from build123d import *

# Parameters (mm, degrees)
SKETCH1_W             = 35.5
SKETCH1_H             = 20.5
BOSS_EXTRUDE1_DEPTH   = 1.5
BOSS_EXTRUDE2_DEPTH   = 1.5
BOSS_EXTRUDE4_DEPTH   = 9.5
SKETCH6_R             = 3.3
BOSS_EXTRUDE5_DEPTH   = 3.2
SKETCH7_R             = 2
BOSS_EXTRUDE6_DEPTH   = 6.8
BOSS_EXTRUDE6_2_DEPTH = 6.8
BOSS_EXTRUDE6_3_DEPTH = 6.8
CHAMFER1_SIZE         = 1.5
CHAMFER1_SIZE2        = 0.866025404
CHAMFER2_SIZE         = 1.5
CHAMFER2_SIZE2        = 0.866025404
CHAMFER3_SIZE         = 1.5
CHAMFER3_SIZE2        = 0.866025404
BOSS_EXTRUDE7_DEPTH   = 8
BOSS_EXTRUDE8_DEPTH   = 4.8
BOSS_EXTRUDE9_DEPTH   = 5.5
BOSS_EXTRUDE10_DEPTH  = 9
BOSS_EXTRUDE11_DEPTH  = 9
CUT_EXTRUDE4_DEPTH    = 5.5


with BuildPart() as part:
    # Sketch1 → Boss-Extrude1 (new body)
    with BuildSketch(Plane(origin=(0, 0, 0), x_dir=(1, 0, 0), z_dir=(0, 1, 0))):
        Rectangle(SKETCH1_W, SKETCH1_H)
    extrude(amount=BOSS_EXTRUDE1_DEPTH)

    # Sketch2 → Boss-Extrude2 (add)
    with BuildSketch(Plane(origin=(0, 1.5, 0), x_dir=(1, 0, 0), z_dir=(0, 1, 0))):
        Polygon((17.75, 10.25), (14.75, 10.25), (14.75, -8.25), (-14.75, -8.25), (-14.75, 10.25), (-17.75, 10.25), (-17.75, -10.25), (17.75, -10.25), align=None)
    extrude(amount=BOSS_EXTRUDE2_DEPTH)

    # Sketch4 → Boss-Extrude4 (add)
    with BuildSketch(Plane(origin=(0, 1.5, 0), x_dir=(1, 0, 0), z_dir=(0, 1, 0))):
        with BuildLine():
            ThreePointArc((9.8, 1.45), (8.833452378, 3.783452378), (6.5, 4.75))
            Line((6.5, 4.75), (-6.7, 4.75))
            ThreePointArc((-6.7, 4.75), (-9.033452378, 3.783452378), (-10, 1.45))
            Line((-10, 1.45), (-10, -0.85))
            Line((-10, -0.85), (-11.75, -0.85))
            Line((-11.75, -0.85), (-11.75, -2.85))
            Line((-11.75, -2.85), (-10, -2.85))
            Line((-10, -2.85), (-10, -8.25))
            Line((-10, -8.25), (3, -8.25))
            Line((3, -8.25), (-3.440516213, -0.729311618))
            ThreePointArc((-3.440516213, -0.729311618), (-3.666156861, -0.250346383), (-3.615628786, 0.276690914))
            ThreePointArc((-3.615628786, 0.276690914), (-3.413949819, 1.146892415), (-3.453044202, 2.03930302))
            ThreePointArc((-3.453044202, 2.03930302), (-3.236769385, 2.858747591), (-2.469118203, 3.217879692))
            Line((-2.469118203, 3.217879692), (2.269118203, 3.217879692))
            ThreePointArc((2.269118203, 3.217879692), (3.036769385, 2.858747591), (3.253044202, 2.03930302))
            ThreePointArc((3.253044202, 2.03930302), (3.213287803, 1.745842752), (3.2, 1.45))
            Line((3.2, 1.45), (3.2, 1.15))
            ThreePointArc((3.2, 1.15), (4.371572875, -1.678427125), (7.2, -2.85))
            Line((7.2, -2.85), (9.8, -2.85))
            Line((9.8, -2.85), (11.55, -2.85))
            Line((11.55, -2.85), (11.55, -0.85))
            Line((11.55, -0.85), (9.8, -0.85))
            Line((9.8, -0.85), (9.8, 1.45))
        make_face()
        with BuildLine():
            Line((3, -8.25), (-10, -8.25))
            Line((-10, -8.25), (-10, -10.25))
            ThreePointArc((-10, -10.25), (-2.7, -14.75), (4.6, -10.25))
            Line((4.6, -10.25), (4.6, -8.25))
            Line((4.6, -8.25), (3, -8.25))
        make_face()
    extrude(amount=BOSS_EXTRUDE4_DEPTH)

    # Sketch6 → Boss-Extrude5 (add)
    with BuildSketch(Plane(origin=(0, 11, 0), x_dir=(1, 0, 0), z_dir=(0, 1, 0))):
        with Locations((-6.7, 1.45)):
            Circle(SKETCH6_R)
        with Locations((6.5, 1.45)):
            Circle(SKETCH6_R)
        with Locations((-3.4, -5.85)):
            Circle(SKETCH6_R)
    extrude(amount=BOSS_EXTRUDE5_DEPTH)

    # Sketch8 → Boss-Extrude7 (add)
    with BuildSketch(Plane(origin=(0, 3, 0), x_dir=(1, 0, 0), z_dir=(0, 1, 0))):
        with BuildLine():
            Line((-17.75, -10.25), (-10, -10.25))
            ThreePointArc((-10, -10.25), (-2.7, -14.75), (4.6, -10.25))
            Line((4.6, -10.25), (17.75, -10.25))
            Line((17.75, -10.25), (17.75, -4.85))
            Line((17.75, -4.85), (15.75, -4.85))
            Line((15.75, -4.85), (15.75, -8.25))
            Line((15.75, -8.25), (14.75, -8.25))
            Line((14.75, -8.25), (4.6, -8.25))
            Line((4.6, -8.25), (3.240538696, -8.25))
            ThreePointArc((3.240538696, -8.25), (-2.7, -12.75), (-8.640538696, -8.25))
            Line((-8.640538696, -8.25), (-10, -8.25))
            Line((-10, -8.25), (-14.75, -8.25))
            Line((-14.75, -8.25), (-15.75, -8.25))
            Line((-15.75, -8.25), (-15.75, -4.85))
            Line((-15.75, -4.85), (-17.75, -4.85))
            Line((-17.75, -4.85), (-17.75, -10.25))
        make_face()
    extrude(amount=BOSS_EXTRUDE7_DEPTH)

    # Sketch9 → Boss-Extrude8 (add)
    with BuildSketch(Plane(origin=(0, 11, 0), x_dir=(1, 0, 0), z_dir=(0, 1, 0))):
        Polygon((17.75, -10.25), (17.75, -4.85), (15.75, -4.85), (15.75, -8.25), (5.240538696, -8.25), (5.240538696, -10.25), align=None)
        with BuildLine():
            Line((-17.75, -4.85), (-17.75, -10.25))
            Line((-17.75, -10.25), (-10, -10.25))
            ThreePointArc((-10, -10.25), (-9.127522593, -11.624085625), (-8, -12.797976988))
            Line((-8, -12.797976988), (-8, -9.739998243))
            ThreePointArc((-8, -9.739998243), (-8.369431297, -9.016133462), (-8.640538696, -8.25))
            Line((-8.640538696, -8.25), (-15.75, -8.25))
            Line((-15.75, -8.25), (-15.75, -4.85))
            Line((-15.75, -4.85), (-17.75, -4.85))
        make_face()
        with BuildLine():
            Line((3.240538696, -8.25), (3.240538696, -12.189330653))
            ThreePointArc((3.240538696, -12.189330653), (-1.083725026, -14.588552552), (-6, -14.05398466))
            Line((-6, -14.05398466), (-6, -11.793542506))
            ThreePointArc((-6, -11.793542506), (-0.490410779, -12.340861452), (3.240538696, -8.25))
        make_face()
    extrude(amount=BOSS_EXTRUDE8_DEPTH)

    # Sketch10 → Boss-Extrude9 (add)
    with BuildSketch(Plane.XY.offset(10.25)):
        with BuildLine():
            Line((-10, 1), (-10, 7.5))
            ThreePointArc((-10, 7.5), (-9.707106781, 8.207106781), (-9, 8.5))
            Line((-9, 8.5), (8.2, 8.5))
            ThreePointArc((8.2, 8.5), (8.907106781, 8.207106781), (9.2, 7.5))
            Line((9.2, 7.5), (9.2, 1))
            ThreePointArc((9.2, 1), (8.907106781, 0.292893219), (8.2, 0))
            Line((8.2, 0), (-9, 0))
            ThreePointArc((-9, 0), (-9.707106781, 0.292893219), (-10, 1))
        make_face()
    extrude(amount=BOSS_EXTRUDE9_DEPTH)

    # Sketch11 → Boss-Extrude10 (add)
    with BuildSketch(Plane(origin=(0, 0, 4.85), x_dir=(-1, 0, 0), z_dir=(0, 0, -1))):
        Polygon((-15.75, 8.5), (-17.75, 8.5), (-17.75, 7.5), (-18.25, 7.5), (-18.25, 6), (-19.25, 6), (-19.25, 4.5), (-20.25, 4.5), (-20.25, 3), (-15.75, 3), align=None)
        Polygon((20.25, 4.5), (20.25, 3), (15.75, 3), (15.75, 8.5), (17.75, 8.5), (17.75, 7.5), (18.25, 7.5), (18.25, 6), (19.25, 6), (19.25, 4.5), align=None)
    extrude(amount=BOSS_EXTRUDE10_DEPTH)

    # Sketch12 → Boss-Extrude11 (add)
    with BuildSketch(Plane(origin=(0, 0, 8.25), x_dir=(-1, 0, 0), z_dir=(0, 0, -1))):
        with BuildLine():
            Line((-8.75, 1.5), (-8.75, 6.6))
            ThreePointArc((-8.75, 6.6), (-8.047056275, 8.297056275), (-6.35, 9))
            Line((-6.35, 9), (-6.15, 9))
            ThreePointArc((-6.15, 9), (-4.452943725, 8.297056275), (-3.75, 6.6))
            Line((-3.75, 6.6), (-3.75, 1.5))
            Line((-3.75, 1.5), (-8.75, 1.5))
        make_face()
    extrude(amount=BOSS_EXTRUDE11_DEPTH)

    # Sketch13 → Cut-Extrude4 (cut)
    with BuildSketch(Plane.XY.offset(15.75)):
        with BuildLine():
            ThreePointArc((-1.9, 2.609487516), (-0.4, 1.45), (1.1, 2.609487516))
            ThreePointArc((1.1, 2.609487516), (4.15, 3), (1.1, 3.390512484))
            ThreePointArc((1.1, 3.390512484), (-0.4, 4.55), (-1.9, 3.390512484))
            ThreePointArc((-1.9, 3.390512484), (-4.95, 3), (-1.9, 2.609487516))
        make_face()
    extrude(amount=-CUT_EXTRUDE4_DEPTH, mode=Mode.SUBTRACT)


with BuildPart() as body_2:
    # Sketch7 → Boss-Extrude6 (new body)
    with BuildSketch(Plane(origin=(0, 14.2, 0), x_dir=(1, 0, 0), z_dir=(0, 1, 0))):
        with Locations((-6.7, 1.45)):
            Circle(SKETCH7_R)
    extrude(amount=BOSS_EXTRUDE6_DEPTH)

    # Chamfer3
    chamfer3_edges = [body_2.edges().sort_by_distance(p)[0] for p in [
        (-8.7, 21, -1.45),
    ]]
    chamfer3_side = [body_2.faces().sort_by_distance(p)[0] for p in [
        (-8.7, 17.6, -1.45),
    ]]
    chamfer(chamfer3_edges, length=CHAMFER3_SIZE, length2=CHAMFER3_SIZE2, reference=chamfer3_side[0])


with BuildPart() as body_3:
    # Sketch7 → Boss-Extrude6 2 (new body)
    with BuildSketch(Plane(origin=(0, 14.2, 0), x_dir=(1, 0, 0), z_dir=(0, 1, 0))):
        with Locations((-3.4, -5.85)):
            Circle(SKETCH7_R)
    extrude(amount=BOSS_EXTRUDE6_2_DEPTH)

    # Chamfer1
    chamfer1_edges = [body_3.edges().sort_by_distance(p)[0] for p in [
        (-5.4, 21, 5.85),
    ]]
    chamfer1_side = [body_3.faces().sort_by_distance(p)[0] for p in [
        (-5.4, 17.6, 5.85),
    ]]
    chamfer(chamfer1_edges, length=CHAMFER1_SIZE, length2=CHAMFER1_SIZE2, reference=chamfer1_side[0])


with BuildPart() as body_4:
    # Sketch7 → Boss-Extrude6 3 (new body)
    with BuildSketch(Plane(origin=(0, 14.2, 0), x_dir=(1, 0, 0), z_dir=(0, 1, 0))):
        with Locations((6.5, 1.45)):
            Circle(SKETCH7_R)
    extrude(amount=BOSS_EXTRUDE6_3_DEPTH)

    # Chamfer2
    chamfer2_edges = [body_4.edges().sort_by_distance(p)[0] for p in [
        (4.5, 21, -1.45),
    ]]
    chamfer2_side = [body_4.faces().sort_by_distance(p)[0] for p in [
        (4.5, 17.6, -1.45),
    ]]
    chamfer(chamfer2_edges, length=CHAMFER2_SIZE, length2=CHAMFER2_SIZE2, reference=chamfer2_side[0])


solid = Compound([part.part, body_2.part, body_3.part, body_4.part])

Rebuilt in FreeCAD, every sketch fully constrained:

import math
import FreeCAD as App
import Part
import Sketcher
Q = App.Units.Quantity


def edges_at(feature, points):
    """Names of the edges that pass closest to the given points."""
    edges = feature.Shape.Edges
    near = lambda p: min(range(len(edges)), key=lambda i: edges[i].distToShape(Part.Vertex(*p))[0])
    return sorted({f"Edge{near(p) + 1}" for p in points})


def add_polygon(sketch, points):
    """Adds a closed chain of lines whose ends are joined by coincident constraints."""
    first, n = sketch.GeometryCount, len(points)
    for a, b in zip(points, points[1:] + points[:1]):
        sketch.addGeometry(Part.LineSegment(App.Vector(*a, 0), App.Vector(*b, 0)), False)
    for i in range(n):
        sketch.addConstraint(Sketcher.Constraint("Coincident", first + i, 2, first + (i + 1) % n, 1))

doc = App.newDocument("Part")
params = doc.addObject("Spreadsheet::Sheet", "Params")
for row, (alias, value) in enumerate([
    ("sketch1_width", "35.5 mm"),
    ("sketch1_height", "20.5 mm"),
    ("pad1_length", "1.5 mm"),
    ("sketch2_width", "3 mm"),
    ("sketch2_width2", "29.5 mm"),
    ("sketch2_height", "18.5 mm"),
    ("sketch2_height2", "20.5 mm"),
    ("pad2_length", "1.5 mm"),
    ("sketch3_radius", "1 mm"),
    ("sketch3_radius2", "4 mm"),
    ("sketch3_radius3", "3.3 mm"),
    ("sketch3_height", "2 mm"),
    ("sketch3_width", "13.2 mm"),
    ("pad3_length", "9.5 mm"),
    ("sketch4_diameter", "6.6 mm"),
    ("pad4_length", "3.2 mm"),
    ("sketch5_width", "2 mm"),
    ("sketch5_height", "5.4 mm"),
    ("sketch5_height2", "3.4 mm"),
    ("sketch5_width2", "7.75 mm"),
    ("sketch5_width3", "13.15 mm"),
    ("pad5_length", "8 mm"),
    ("sketch6_width", "2 mm"),
    ("sketch6_height", "5.4 mm"),
    ("sketch6_width2", "7.75 mm"),
    ("pad6_length", "4.8 mm"),
    ("sketch7_radius", "1 mm"),
    ("sketch7_width", "17.2 mm"),
    ("sketch7_height", "6.5 mm"),
    ("pad7_length", "5.5 mm"),
    ("sketch8_width", "2 mm"),
    ("sketch8_width2", "1 mm"),
    ("sketch8_width3", "0.5 mm"),
    ("sketch8_height", "1.5 mm"),
    ("pad8_length", "9 mm"),
    ("sketch9_radius", "2.4 mm"),
    ("sketch9_width", "5 mm"),
    ("sketch9_height", "5.1 mm"),
    ("pad9_length", "9 mm"),
    ("sketch10_radius", "1.55 mm"),
    ("pocket1_length", "5.5 mm"),
    ("sketch11_diameter", "4 mm"),
    ("pad10_length", "6.8 mm"),
    ("chamfer_size", "1.5 mm"),
    ("chamfer_size2", "0.866025 mm"),
    ("sketch12_diameter", "4 mm"),
    ("pad11_length", "6.8 mm"),
    ("chamfer2_size", "1.5 mm"),
    ("chamfer2_size2", "0.866025 mm"),
    ("sketch13_diameter", "4 mm"),
    ("pad12_length", "6.8 mm"),
    ("chamfer3_size", "1.5 mm"),
    ("chamfer3_size2", "0.866025 mm"),
], start=1):
    params.set(f"A{row}", alias)
    params.set(f"B{row}", "=" + value)
    params.setAlias(f"B{row}", alias)

body = doc.addObject("PartDesign::Body", "Body")

sketch1 = body.newObject("Sketcher::SketchObject", "Sketch")
sketch1.AttachmentSupport = (doc.getObject("XZ_Plane"), [""])
sketch1.MapMode = "FlatFace"
add_polygon(sketch1, [(-18, -10), (-18, 10), (18, 10), (18, -10)])
sketch1.addConstraint(Sketcher.Constraint("Vertical", 0))
sketch1.addConstraint(Sketcher.Constraint("Horizontal", 1))
sketch1.addConstraint(Sketcher.Constraint("Vertical", 2))
sketch1.addConstraint(Sketcher.Constraint("Horizontal", 3))
sketch1.addConstraint(Sketcher.Constraint("Symmetric", 0, 2, 2, 2, -1, 1))
sketch1.addConstraint(Sketcher.Constraint("DistanceX", 1, 1, 1, 2, Q("35.5 mm")))
sketch1.addConstraint(Sketcher.Constraint("DistanceY", 0, 1, 0, 2, Q("20.5 mm")))
sketch1.setExpression("Constraints[9]", "Params.sketch1_width")
sketch1.setExpression("Constraints[10]", "Params.sketch1_height")
pad1 = body.newObject("PartDesign::Pad", "Pad")
pad1.Profile = sketch1
pad1.setExpression("Length", "Params.pad1_length")
pad1.Reversed = True

sketch2 = body.newObject("Sketcher::SketchObject", "Sketch001")
sketch2.AttachmentSupport = (doc.getObject("XZ_Plane"), [""])
sketch2.MapMode = "FlatFace"
sketch2.AttachmentOffset = App.Placement(App.Vector(0, 0, -1.5), App.Rotation())
add_polygon(sketch2, [(17.8, -10.2), (14.8, -10.2), (14.8, 8.2), (-14.8, 8.2), (-14.8, -10.2), (-17.8, -10.2), (-17.8, 10.2), (17.8, 10.2)])
sketch2.addConstraint(Sketcher.Constraint("Horizontal", 0))
sketch2.addConstraint(Sketcher.Constraint("Vertical", 1))
sketch2.addConstraint(Sketcher.Constraint("Horizontal", 2))
sketch2.addConstraint(Sketcher.Constraint("Vertical", 3))
sketch2.addConstraint(Sketcher.Constraint("Horizontal", 4))
sketch2.addConstraint(Sketcher.Constraint("Vertical", 5))
sketch2.addConstraint(Sketcher.Constraint("Horizontal", 6))
sketch2.addConstraint(Sketcher.Constraint("Vertical", 7))
sketch2.addConstraint(Sketcher.Constraint("Symmetric", 4, 2, 6, 2, -1, 1))
sketch2.addConstraint(Sketcher.Constraint("Symmetric", 0, 2, 3, 2, -2))
sketch2.addConstraint(Sketcher.Constraint("DistanceX", 0, 2, 0, 1, Q("3 mm")))
sketch2.addConstraint(Sketcher.Constraint("DistanceX", 2, 2, 2, 1, Q("29.5 mm")))
sketch2.addConstraint(Sketcher.Constraint("DistanceY", 1, 1, 1, 2, Q("18.5 mm")))
sketch2.addConstraint(Sketcher.Constraint("DistanceY", 5, 1, 5, 2, Q("20.5 mm")))
sketch2.setExpression("Constraints[18]", "Params.sketch2_width")
sketch2.setExpression("Constraints[19]", "Params.sketch2_width2")
sketch2.setExpression("Constraints[20]", "Params.sketch2_height")
sketch2.setExpression("Constraints[21]", "Params.sketch2_height2")
pad2 = body.newObject("PartDesign::Pad", "Pad001")
pad2.Profile = sketch2
pad2.setExpression("Length", "Params.pad2_length")
pad2.Reversed = True

sketch3 = body.newObject("Sketcher::SketchObject", "Sketch002")
sketch3.AttachmentSupport = (doc.getObject("XZ_Plane"), [""])
sketch3.MapMode = "FlatFace"
sketch3.AttachmentOffset = App.Placement(App.Vector(0, 0, -1.5), App.Rotation())
sketch3.addGeometry(Part.ArcOfCircle(Part.Circle(App.Vector(6.5, -1.45, 0), App.Vector(0, 0, 1), 3.3), math.radians(-90), math.radians(0)), False)
sketch3.addGeometry(Part.LineSegment(App.Vector(6.5, -4.75, 0), App.Vector(-6.7, -4.75, 0)), False)
sketch3.addGeometry(Part.ArcOfCircle(Part.Circle(App.Vector(-6.7, -1.45, 0), App.Vector(0, 0, 1), 3.3), math.radians(180), math.radians(270)), False)
sketch3.addGeometry(Part.LineSegment(App.Vector(-10, -1.45, 0), App.Vector(-10, 0.85, 0)), False)
sketch3.addGeometry(Part.LineSegment(App.Vector(-10, 0.85, 0), App.Vector(-11.75, 0.85, 0)), False)
sketch3.addGeometry(Part.LineSegment(App.Vector(-11.75, 0.85, 0), App.Vector(-11.75, 2.85, 0)), False)
sketch3.addGeometry(Part.LineSegment(App.Vector(-11.75, 2.85, 0), App.Vector(-10, 2.85, 0)), False)
sketch3.addGeometry(Part.LineSegment(App.Vector(-10, 2.85, 0), App.Vector(-10, 10.25, 0)), False)
sketch3.addGeometry(Part.ArcOfCircle(Part.Circle(App.Vector(-2.7, 6.58, 0), App.Vector(0, 0, 1), 8.17), math.radians(27), math.radians(153)), False)
sketch3.addGeometry(Part.LineSegment(App.Vector(4.6, 10.25, 0), App.Vector(4.6, 8.25, 0)), False)
sketch3.addGeometry(Part.LineSegment(App.Vector(4.6, 8.25, 0), App.Vector(3, 8.25, 0)), False)
sketch3.addGeometry(Part.LineSegment(App.Vector(3, 8.25, 0), App.Vector(-3.44, 0.73, 0)), False)
sketch3.addGeometry(Part.ArcOfCircle(Part.Circle(App.Vector(-2.68, 0.08, 0), App.Vector(0, 0, 1), 1), math.radians(139), math.radians(201)), False)
sketch3.addGeometry(Part.ArcOfCircle(Part.Circle(App.Vector(-6.7, -1.45, 0), App.Vector(0, 0, 1), 3.3), math.radians(-10), math.radians(21)), False)
sketch3.addGeometry(Part.ArcOfCircle(Part.Circle(App.Vector(-2.47, -2.22, 0), App.Vector(0, 0, 1), 1), math.radians(170), math.radians(270)), False)
sketch3.addGeometry(Part.LineSegment(App.Vector(-2.47, -3.22, 0), App.Vector(2.27, -3.22, 0)), False)
sketch3.addGeometry(Part.ArcOfCircle(Part.Circle(App.Vector(2.27, -2.22, 0), App.Vector(0, 0, 1), 1), math.radians(-90), math.radians(10)), False)
sketch3.addGeometry(Part.ArcOfCircle(Part.Circle(App.Vector(6.5, -1.45, 0), App.Vector(0, 0, 1), 3.3), math.radians(-180), math.radians(-169.71)), False)
sketch3.addGeometry(Part.LineSegment(App.Vector(3.2, -1.45, 0), App.Vector(3.2, -1.15, 0)), False)
sketch3.addGeometry(Part.ArcOfCircle(Part.Circle(App.Vector(7.2, -1.15, 0), App.Vector(0, 0, 1), 4), math.radians(90), math.radians(180)), False)
sketch3.addGeometry(Part.LineSegment(App.Vector(7.2, 2.85, 0), App.Vector(11.55, 2.85, 0)), False)
sketch3.addGeometry(Part.LineSegment(App.Vector(11.55, 2.85, 0), App.Vector(11.55, 0.85, 0)), False)
sketch3.addGeometry(Part.LineSegment(App.Vector(11.55, 0.85, 0), App.Vector(9.8, 0.85, 0)), False)
sketch3.addGeometry(Part.LineSegment(App.Vector(9.8, 0.85, 0), App.Vector(9.8, -1.45, 0)), False)
sketch3.addConstraint(Sketcher.Constraint("Tangent", 0, 1, 1, 1))
sketch3.addConstraint(Sketcher.Constraint("Tangent", 1, 2, 2, 2))
sketch3.addConstraint(Sketcher.Constraint("Tangent", 2, 1, 3, 1))
sketch3.addConstraint(Sketcher.Constraint("Coincident", 3, 2, 4, 1))
sketch3.addConstraint(Sketcher.Constraint("Coincident", 4, 2, 5, 1))
sketch3.addConstraint(Sketcher.Constraint("Coincident", 5, 2, 6, 1))
sketch3.addConstraint(Sketcher.Constraint("Coincident", 6, 2, 7, 1))
sketch3.addConstraint(Sketcher.Constraint("Coincident", 7, 2, 8, 2))
sketch3.addConstraint(Sketcher.Constraint("Coincident", 8, 1, 9, 1))
sketch3.addConstraint(Sketcher.Constraint("Coincident", 9, 2, 10, 1))
sketch3.addConstraint(Sketcher.Constraint("Coincident", 10, 2, 11, 1))
sketch3.addConstraint(Sketcher.Constraint("Tangent", 11, 2, 12, 1))
sketch3.addConstraint(Sketcher.Constraint("Tangent", 12, 2, 13, 2))
sketch3.addConstraint(Sketcher.Constraint("Tangent", 13, 1, 14, 1))
sketch3.addConstraint(Sketcher.Constraint("Tangent", 14, 2, 15, 1))
sketch3.addConstraint(Sketcher.Constraint("Tangent", 15, 2, 16, 1))
sketch3.addConstraint(Sketcher.Constraint("Tangent", 16, 2, 17, 2))
sketch3.addConstraint(Sketcher.Constraint("Tangent", 17, 1, 18, 1))
sketch3.addConstraint(Sketcher.Constraint("Tangent", 18, 2, 19, 2))
sketch3.addConstraint(Sketcher.Constraint("Tangent", 19, 1, 20, 1))
sketch3.addConstraint(Sketcher.Constraint("Coincident", 20, 2, 21, 1))
sketch3.addConstraint(Sketcher.Constraint("Coincident", 21, 2, 22, 1))
sketch3.addConstraint(Sketcher.Constraint("Coincident", 22, 2, 23, 1))
sketch3.addConstraint(Sketcher.Constraint("Tangent", 23, 2, 0, 2))
sketch3.addConstraint(Sketcher.Constraint("Horizontal", 1))
sketch3.addConstraint(Sketcher.Constraint("Vertical", 3))
sketch3.addConstraint(Sketcher.Constraint("Horizontal", 4))
sketch3.addConstraint(Sketcher.Constraint("Vertical", 5))
sketch3.addConstraint(Sketcher.Constraint("Horizontal", 6))
sketch3.addConstraint(Sketcher.Constraint("Vertical", 7))
sketch3.addConstraint(Sketcher.Constraint("Vertical", 9))
sketch3.addConstraint(Sketcher.Constraint("Horizontal", 10))
sketch3.addConstraint(Sketcher.Constraint("Horizontal", 15))
sketch3.addConstraint(Sketcher.Constraint("Vertical", 18))
sketch3.addConstraint(Sketcher.Constraint("Horizontal", 20))
sketch3.addConstraint(Sketcher.Constraint("Vertical", 21))
sketch3.addConstraint(Sketcher.Constraint("Horizontal", 22))
sketch3.addConstraint(Sketcher.Constraint("Vertical", 23))
sketch3.addConstraint(Sketcher.Constraint("Coincident", 13, 3, 2, 3))
sketch3.addConstraint(Sketcher.Constraint("Coincident", 17, 3, 0, 3))
sketch3.addConstraint(Sketcher.Constraint("Equal", 0, 2))
sketch3.addConstraint(Sketcher.Constraint("Equal", 2, 13))
sketch3.addConstraint(Sketcher.Constraint("Equal", 12, 14))
sketch3.addConstraint(Sketcher.Constraint("Equal", 14, 16))
sketch3.addConstraint(Sketcher.Constraint("Equal", 13, 17))
sketch3.addConstraint(Sketcher.Constraint("Horizontal", 7, 2, 8, 1))
sketch3.addConstraint(Sketcher.Constraint("Horizontal", 6, 2, 19, 1))
sketch3.addConstraint(Sketcher.Constraint("Horizontal", 4, 2, 21, 2))
sketch3.addConstraint(Sketcher.Constraint("Vertical", 3, 2, 6, 2))
sketch3.addConstraint(Sketcher.Constraint("Equal", 6, 22))
sketch3.addConstraint(Sketcher.Constraint("Equal", 5, 9))
sketch3.addConstraint(Sketcher.Constraint("Radius", 12, Q("1 mm")))
sketch3.addConstraint(Sketcher.Constraint("Radius", 19, Q("4 mm")))
sketch3.addConstraint(Sketcher.Constraint("Radius", 0, Q("3.3 mm")))
sketch3.addConstraint(Sketcher.Constraint("DistanceY", 5, 1, 5, 2, Q("2 mm")))
sketch3.addConstraint(Sketcher.Constraint("DistanceX", 1, 2, 1, 1, Q("13.2 mm")))
sketch3.addConstraint(Sketcher.Constraint("DistanceX", 10, 2, 10, 1, Q("1.6 mm")))
sketch3.addConstraint(Sketcher.Constraint("DistanceY", 3, 1, 3, 2, Q("2.3 mm")))
sketch3.addConstraint(Sketcher.Constraint("DistanceY", 7, 1, 7, 2, Q("7.4 mm")))
sketch3.addConstraint(Sketcher.Constraint("DistanceX", 2, 1, -1, 1, Q("10 mm")))
sketch3.addConstraint(Sketcher.Constraint("DistanceX", -1, 1, 10, 2, Q("3 mm")))
sketch3.addConstraint(Sketcher.Constraint("DistanceX", 4, 2, 4, 1, Q("1.75 mm")))
sketch3.addConstraint(Sketcher.Constraint("DistanceY", 0, 3, -1, 1, Q("1.45 mm")))
sketch3.addConstraint(Sketcher.Constraint("Radius", 8, Q("8.171111 mm")))
sketch3.addConstraint(Sketcher.Constraint("DistanceX", 11, 2, 14, 3, Q("0.971398 mm")))
sketch3.addConstraint(Sketcher.Constraint("DistanceX", 15, 1, 15, 2, Q("4.738236 mm")))
sketch3.setExpression("Constraints[51]", "Params.sketch3_radius")
sketch3.setExpression("Constraints[52]", "Params.sketch3_radius2")
sketch3.setExpression("Constraints[53]", "Params.sketch3_radius3")
sketch3.setExpression("Constraints[54]", "Params.sketch3_height")
sketch3.setExpression("Constraints[55]", "Params.sketch3_width")
pad3 = body.newObject("PartDesign::Pad", "Pad002")
pad3.Profile = sketch3
pad3.setExpression("Length", "Params.pad3_length")
pad3.Reversed = True

sketch4 = body.newObject("Sketcher::SketchObject", "Sketch003")
sketch4.AttachmentSupport = (doc.getObject("XZ_Plane"), [""])
sketch4.MapMode = "FlatFace"
sketch4.AttachmentOffset = App.Placement(App.Vector(0, 0, -11), App.Rotation())
sketch4.addGeometry(Part.Circle(App.Vector(-6.7, -1.4, 0), App.Vector(0, 0, 1), 3.3), False)
sketch4.addGeometry(Part.Circle(App.Vector(6.5, -1.4, 0), App.Vector(0, 0, 1), 3.3), False)
sketch4.addGeometry(Part.Circle(App.Vector(-3.4, 5.8, 0), App.Vector(0, 0, 1), 3.3), False)
sketch4.addConstraint(Sketcher.Constraint("Equal", 0, 1))
sketch4.addConstraint(Sketcher.Constraint("Equal", 1, 2))
sketch4.addConstraint(Sketcher.Constraint("Horizontal", 0, 3, 1, 3))
sketch4.addConstraint(Sketcher.Constraint("Diameter", 0, Q("6.6 mm")))
sketch4.addConstraint(Sketcher.Constraint("DistanceX", 0, 3, -1, 1, Q("6.7 mm")))
sketch4.addConstraint(Sketcher.Constraint("DistanceX", -1, 1, 1, 3, Q("6.5 mm")))
sketch4.addConstraint(Sketcher.Constraint("DistanceX", 2, 3, -1, 1, Q("3.4 mm")))
sketch4.addConstraint(Sketcher.Constraint("DistanceY", 0, 3, 2, 3, Q("7.3 mm")))
sketch4.addConstraint(Sketcher.Constraint("DistanceY", 0, 3, -1, 1, Q("1.45 mm")))
sketch4.setExpression("Constraints[3]", "Params.sketch4_diameter")
pad4 = body.newObject("PartDesign::Pad", "Pad003")
pad4.Profile = sketch4
pad4.setExpression("Length", "Params.pad4_length")
pad4.Reversed = True

sketch5 = body.newObject("Sketcher::SketchObject", "Sketch004")
sketch5.AttachmentSupport = (doc.getObject("XZ_Plane"), [""])
sketch5.MapMode = "FlatFace"
sketch5.AttachmentOffset = App.Placement(App.Vector(0, 0, -3), App.Rotation())
sketch5.addGeometry(Part.LineSegment(App.Vector(-17.8, 10.2, 0), App.Vector(-10, 10.2, 0)), False)
sketch5.addGeometry(Part.ArcOfCircle(Part.Circle(App.Vector(-2.7, 6.6, 0), App.Vector(0, 0, 1), 8.2), math.radians(27), math.radians(153)), False)
sketch5.addGeometry(Part.LineSegment(App.Vector(4.6, 10.2, 0), App.Vector(17.8, 10.2, 0)), False)
sketch5.addGeometry(Part.LineSegment(App.Vector(17.8, 10.2, 0), App.Vector(17.8, 4.8, 0)), False)
sketch5.addGeometry(Part.LineSegment(App.Vector(17.8, 4.8, 0), App.Vector(15.8, 4.8, 0)), False)
sketch5.addGeometry(Part.LineSegment(App.Vector(15.8, 4.8, 0), App.Vector(15.8, 8.2, 0)), False)
sketch5.addGeometry(Part.LineSegment(App.Vector(15.8, 8.2, 0), App.Vector(3.2, 8.2, 0)), False)
sketch5.addGeometry(Part.ArcOfCircle(Part.Circle(App.Vector(-2.7, 6.6, 0), App.Vector(0, 0, 1), 6.2), math.radians(16), math.radians(164)), False)
sketch5.addGeometry(Part.LineSegment(App.Vector(-8.6, 8.2, 0), App.Vector(-15.8, 8.2, 0)), False)
sketch5.addGeometry(Part.LineSegment(App.Vector(-15.8, 8.2, 0), App.Vector(-15.8, 4.8, 0)), False)
sketch5.addGeometry(Part.LineSegment(App.Vector(-15.8, 4.8, 0), App.Vector(-17.8, 4.8, 0)), False)
sketch5.addGeometry(Part.LineSegment(App.Vector(-17.8, 4.8, 0), App.Vector(-17.8, 10.2, 0)), False)
sketch5.addConstraint(Sketcher.Constraint("Coincident", 0, 2, 1, 2))
sketch5.addConstraint(Sketcher.Constraint("Coincident", 1, 1, 2, 1))
sketch5.addConstraint(Sketcher.Constraint("Coincident", 2, 2, 3, 1))
sketch5.addConstraint(Sketcher.Constraint("Coincident", 3, 2, 4, 1))
sketch5.addConstraint(Sketcher.Constraint("Coincident", 4, 2, 5, 1))
sketch5.addConstraint(Sketcher.Constraint("Coincident", 5, 2, 6, 1))
sketch5.addConstraint(Sketcher.Constraint("Coincident", 6, 2, 7, 1))
sketch5.addConstraint(Sketcher.Constraint("Coincident", 7, 2, 8, 1))
sketch5.addConstraint(Sketcher.Constraint("Coincident", 8, 2, 9, 1))
sketch5.addConstraint(Sketcher.Constraint("Coincident", 9, 2, 10, 1))
sketch5.addConstraint(Sketcher.Constraint("Coincident", 10, 2, 11, 1))
sketch5.addConstraint(Sketcher.Constraint("Coincident", 11, 2, 0, 1))
sketch5.addConstraint(Sketcher.Constraint("Horizontal", 0))
sketch5.addConstraint(Sketcher.Constraint("Horizontal", 2))
sketch5.addConstraint(Sketcher.Constraint("Vertical", 3))
sketch5.addConstraint(Sketcher.Constraint("Horizontal", 4))
sketch5.addConstraint(Sketcher.Constraint("Vertical", 5))
sketch5.addConstraint(Sketcher.Constraint("Horizontal", 6))
sketch5.addConstraint(Sketcher.Constraint("Horizontal", 8))
sketch5.addConstraint(Sketcher.Constraint("Vertical", 9))
sketch5.addConstraint(Sketcher.Constraint("Horizontal", 10))
sketch5.addConstraint(Sketcher.Constraint("Vertical", 11))
sketch5.addConstraint(Sketcher.Constraint("Coincident", 7, 3, 1, 3))
sketch5.addConstraint(Sketcher.Constraint("Symmetric", 5, 2, 8, 2, -2))
sketch5.addConstraint(Sketcher.Constraint("Symmetric", 3, 2, 10, 2, -2))
sketch5.addConstraint(Sketcher.Constraint("Horizontal", 0, 2, 1, 1))
sketch5.addConstraint(Sketcher.Constraint("DistanceX", 4, 2, 4, 1, Q("2 mm")))
sketch5.addConstraint(Sketcher.Constraint("DistanceY", 3, 2, 3, 1, Q("5.4 mm")))
sketch5.addConstraint(Sketcher.Constraint("DistanceY", 5, 1, 5, 2, Q("3.4 mm")))
sketch5.addConstraint(Sketcher.Constraint("DistanceX", 0, 2, -1, 1, Q("10 mm")))
sketch5.addConstraint(Sketcher.Constraint("DistanceX", 0, 1, 0, 2, Q("7.75 mm")))
sketch5.addConstraint(Sketcher.Constraint("DistanceX", 2, 1, 2, 2, Q("13.15 mm")))
sketch5.addConstraint(Sketcher.Constraint("DistanceY", -1, 1, 0, 2, Q("10.25 mm")))
sketch5.addConstraint(Sketcher.Constraint("Radius", 1, Q("8.171111 mm")))
sketch5.addConstraint(Sketcher.Constraint("Radius", 7, Q("6.171111 mm")))
sketch5.setExpression("Constraints[26]", "Params.sketch5_width")
sketch5.setExpression("Constraints[27]", "Params.sketch5_height")
sketch5.setExpression("Constraints[28]", "Params.sketch5_height2")
sketch5.setExpression("Constraints[30]", "Params.sketch5_width2")
sketch5.setExpression("Constraints[31]", "Params.sketch5_width3")
pad5 = body.newObject("PartDesign::Pad", "Pad004")
pad5.Profile = sketch5
pad5.setExpression("Length", "Params.pad5_length")
pad5.Reversed = True

sketch6 = body.newObject("Sketcher::SketchObject", "Sketch005")
sketch6.AttachmentSupport = (doc.getObject("XZ_Plane"), [""])
sketch6.MapMode = "FlatFace"
sketch6.AttachmentOffset = App.Placement(App.Vector(0, 0, -11), App.Rotation())
add_polygon(sketch6, [(17.8, 10.2), (17.8, 4.8), (15.8, 4.8), (15.8, 8.2), (5.2, 8.2), (5.2, 10.2)])
sketch6.addGeometry(Part.LineSegment(App.Vector(-17.8, 4.8, 0), App.Vector(-17.8, 10.2, 0)), False)
sketch6.addGeometry(Part.LineSegment(App.Vector(-17.8, 10.2, 0), App.Vector(-10, 10.2, 0)), False)
sketch6.addGeometry(Part.ArcOfCircle(Part.Circle(App.Vector(-2.7, 6.6, 0), App.Vector(0, 0, 1), 8.2), math.radians(130), math.radians(153)), False)
sketch6.addGeometry(Part.LineSegment(App.Vector(-8, 12.8, 0), App.Vector(-8, 9.7, 0)), False)
sketch6.addGeometry(Part.ArcOfCircle(Part.Circle(App.Vector(-2.7, 6.6, 0), App.Vector(0, 0, 1), 6.2), math.radians(149.19), math.radians(164.29)), False)
sketch6.addGeometry(Part.LineSegment(App.Vector(-8.6, 8.2, 0), App.Vector(-15.8, 8.2, 0)), False)
sketch6.addGeometry(Part.LineSegment(App.Vector(-15.8, 8.2, 0), App.Vector(-15.8, 4.8, 0)), False)
sketch6.addGeometry(Part.LineSegment(App.Vector(-15.8, 4.8, 0), App.Vector(-17.8, 4.8, 0)), False)
sketch6.addGeometry(Part.LineSegment(App.Vector(3.2, 12.2, 0), App.Vector(3.2, 8.2, 0)), False)
sketch6.addGeometry(Part.ArcOfCircle(Part.Circle(App.Vector(-2.7, 6.6, 0), App.Vector(0, 0, 1), 6.2), math.radians(16), math.radians(122)), False)
sketch6.addGeometry(Part.LineSegment(App.Vector(-6, 11.8, 0), App.Vector(-6, 14.1, 0)), False)
sketch6.addGeometry(Part.ArcOfCircle(Part.Circle(App.Vector(-2.7, 6.6, 0), App.Vector(0, 0, 1), 8.2), math.radians(43), math.radians(114)), False)
sketch6.addConstraint(Sketcher.Constraint("Coincident", 6, 2, 7, 1))
sketch6.addConstraint(Sketcher.Constraint("Coincident", 7, 2, 8, 2))
sketch6.addConstraint(Sketcher.Constraint("Coincident", 8, 1, 9, 1))
sketch6.addConstraint(Sketcher.Constraint("Coincident", 9, 2, 10, 1))
sketch6.addConstraint(Sketcher.Constraint("Coincident", 10, 2, 11, 1))
sketch6.addConstraint(Sketcher.Constraint("Coincident", 11, 2, 12, 1))
sketch6.addConstraint(Sketcher.Constraint("Coincident", 12, 2, 13, 1))
sketch6.addConstraint(Sketcher.Constraint("Coincident", 13, 2, 6, 1))
sketch6.addConstraint(Sketcher.Constraint("Coincident", 14, 2, 15, 1))
sketch6.addConstraint(Sketcher.Constraint("Coincident", 15, 2, 16, 1))
sketch6.addConstraint(Sketcher.Constraint("Coincident", 16, 2, 17, 2))
sketch6.addConstraint(Sketcher.Constraint("Coincident", 17, 1, 14, 1))
sketch6.addConstraint(Sketcher.Constraint("Vertical", 0))
sketch6.addConstraint(Sketcher.Constraint("Horizontal", 1))
sketch6.addConstraint(Sketcher.Constraint("Vertical", 2))
sketch6.addConstraint(Sketcher.Constraint("Horizontal", 3))
sketch6.addConstraint(Sketcher.Constraint("Vertical", 4))
sketch6.addConstraint(Sketcher.Constraint("Horizontal", 5))
sketch6.addConstraint(Sketcher.Constraint("Vertical", 6))
sketch6.addConstraint(Sketcher.Constraint("Horizontal", 7))
sketch6.addConstraint(Sketcher.Constraint("Vertical", 9))
sketch6.addConstraint(Sketcher.Constraint("Horizontal", 11))
sketch6.addConstraint(Sketcher.Constraint("Vertical", 12))
sketch6.addConstraint(Sketcher.Constraint("Horizontal", 13))
sketch6.addConstraint(Sketcher.Constraint("Vertical", 14))
sketch6.addConstraint(Sketcher.Constraint("Vertical", 16))
sketch6.addConstraint(Sketcher.Constraint("Coincident", 10, 3, 8, 3))
sketch6.addConstraint(Sketcher.Constraint("Coincident", 15, 3, 8, 3))
sketch6.addConstraint(Sketcher.Constraint("Coincident", 17, 3, 8, 3))
sketch6.addConstraint(Sketcher.Constraint("Equal", 10, 15))
sketch6.addConstraint(Sketcher.Constraint("Equal", 8, 17))
sketch6.addConstraint(Sketcher.Constraint("Symmetric", 5, 2, 6, 2, -2))
sketch6.addConstraint(Sketcher.Constraint("Symmetric", 2, 2, 11, 2, -2))
sketch6.addConstraint(Sketcher.Constraint("Horizontal", 1, 2, 12, 2))
sketch6.addConstraint(Sketcher.Constraint("Horizontal", 11, 2, 14, 2))
sketch6.addConstraint(Sketcher.Constraint("Equal", 13, 4))
sketch6.addConstraint(Sketcher.Constraint("DistanceX", 1, 2, 1, 1, Q("2 mm")))
sketch6.addConstraint(Sketcher.Constraint("DistanceY", 0, 2, 0, 1, Q("5.4 mm")))
sketch6.addConstraint(Sketcher.Constraint("DistanceX", 7, 2, -1, 1, Q("10 mm")))
sketch6.addConstraint(Sketcher.Constraint("DistanceX", 8, 1, -1, 1, Q("8 mm")))
sketch6.addConstraint(Sketcher.Constraint("DistanceX", 15, 2, -1, 1, Q("6 mm")))
sketch6.addConstraint(Sketcher.Constraint("DistanceX", 14, 2, 3, 2, Q("2 mm")))
sketch6.addConstraint(Sketcher.Constraint("DistanceX", 7, 1, 7, 2, Q("7.75 mm")))
sketch6.addConstraint(Sketcher.Constraint("DistanceX", 8, 3, -1, 1, Q("2.7 mm")))
sketch6.addConstraint(Sketcher.Constraint("DistanceY", -1, 1, 0, 2, Q("4.85 mm")))
sketch6.addConstraint(Sketcher.Constraint("DistanceY", -1, 1, 9, 2, Q("9.739998 mm")))
sketch6.addConstraint(Sketcher.Constraint("Radius", 8, Q("8.171111 mm")))
sketch6.setExpression("Constraints[42]", "Params.sketch6_width")
sketch6.setExpression("Constraints[43]", "Params.sketch6_height")
sketch6.setExpression("Constraints[48]", "Params.sketch6_width2")
pad6 = body.newObject("PartDesign::Pad", "Pad005")
pad6.Profile = sketch6
pad6.setExpression("Length", "Params.pad6_length")
pad6.Reversed = True

sketch7 = body.newObject("Sketcher::SketchObject", "Sketch006")
sketch7.AttachmentSupport = (doc.getObject("XY_Plane"), [""])
sketch7.MapMode = "FlatFace"
sketch7.AttachmentOffset = App.Placement(App.Vector(0, 0, 10.25), App.Rotation())
sketch7.addGeometry(Part.LineSegment(App.Vector(-10, 7.5, 0), App.Vector(-10, 1, 0)), False)
sketch7.addGeometry(Part.ArcOfCircle(Part.Circle(App.Vector(-9, 1, 0), App.Vector(0, 0, 1), 1), math.radians(-180), math.radians(-90)), False)
sketch7.addGeometry(Part.LineSegment(App.Vector(-9, 0, 0), App.Vector(8.2, 0, 0)), False)
sketch7.addGeometry(Part.ArcOfCircle(Part.Circle(App.Vector(8.2, 1, 0), App.Vector(0, 0, 1), 1), math.radians(-90), math.radians(0)), False)
sketch7.addGeometry(Part.LineSegment(App.Vector(9.2, 1, 0), App.Vector(9.2, 7.5, 0)), False)
sketch7.addGeometry(Part.ArcOfCircle(Part.Circle(App.Vector(8.2, 7.5, 0), App.Vector(0, 0, 1), 1), math.radians(0), math.radians(90)), False)
sketch7.addGeometry(Part.LineSegment(App.Vector(8.2, 8.5, 0), App.Vector(-9, 8.5, 0)), False)
sketch7.addGeometry(Part.ArcOfCircle(Part.Circle(App.Vector(-9, 7.5, 0), App.Vector(0, 0, 1), 1), math.radians(90), math.radians(180)), False)
sketch7.addConstraint(Sketcher.Constraint("Tangent", 0, 2, 1, 1))
sketch7.addConstraint(Sketcher.Constraint("Tangent", 1, 2, 2, 1))
sketch7.addConstraint(Sketcher.Constraint("Tangent", 2, 2, 3, 1))
sketch7.addConstraint(Sketcher.Constraint("Tangent", 3, 2, 4, 1))
sketch7.addConstraint(Sketcher.Constraint("Tangent", 4, 2, 5, 1))
sketch7.addConstraint(Sketcher.Constraint("Tangent", 5, 2, 6, 1))
sketch7.addConstraint(Sketcher.Constraint("Tangent", 6, 2, 7, 1))
sketch7.addConstraint(Sketcher.Constraint("Tangent", 7, 2, 0, 1))
sketch7.addConstraint(Sketcher.Constraint("Vertical", 0))
sketch7.addConstraint(Sketcher.Constraint("Horizontal", 2))
sketch7.addConstraint(Sketcher.Constraint("Vertical", 4))
sketch7.addConstraint(Sketcher.Constraint("Horizontal", 6))
sketch7.addConstraint(Sketcher.Constraint("Equal", 1, 3))
sketch7.addConstraint(Sketcher.Constraint("Equal", 3, 5))
sketch7.addConstraint(Sketcher.Constraint("Equal", 5, 7))
sketch7.addConstraint(Sketcher.Constraint("PointOnObject", 1, 2, -1))
sketch7.addConstraint(Sketcher.Constraint("Radius", 1, Q("1 mm")))
sketch7.addConstraint(Sketcher.Constraint("DistanceX", 2, 1, 2, 2, Q("17.2 mm")))
sketch7.addConstraint(Sketcher.Constraint("DistanceY", 0, 2, 0, 1, Q("6.5 mm")))
sketch7.addConstraint(Sketcher.Constraint("DistanceX", 1, 3, -1, 1, Q("9 mm")))
sketch7.setExpression("Constraints[16]", "Params.sketch7_radius")
sketch7.setExpression("Constraints[17]", "Params.sketch7_width")
sketch7.setExpression("Constraints[18]", "Params.sketch7_height")
pad7 = body.newObject("PartDesign::Pad", "Pad006")
pad7.Profile = sketch7
pad7.setExpression("Length", "Params.pad7_length")

sketch8 = body.newObject("Sketcher::SketchObject", "Sketch007")
sketch8.AttachmentSupport = (doc.getObject("XY_Plane"), [""])
sketch8.MapMode = "FlatFace"
sketch8.AttachmentOffset = App.Placement(App.Vector(0, 0, 4.85), App.Rotation())
add_polygon(sketch8, [(15.8, 8.5), (17.8, 8.5), (17.8, 7.5), (18.2, 7.5), (18.2, 6), (19.2, 6), (19.2, 4.5), (20.2, 4.5), (20.2, 3), (15.8, 3)])
add_polygon(sketch8, [(-20.2, 3), (-20.2, 4.5), (-19.2, 4.5), (-19.2, 6), (-18.2, 6), (-18.2, 7.5), (-17.8, 7.5), (-17.8, 8.5), (-15.8, 8.5), (-15.8, 3)])
sketch8.addConstraint(Sketcher.Constraint("Horizontal", 0))
sketch8.addConstraint(Sketcher.Constraint("Vertical", 1))
sketch8.addConstraint(Sketcher.Constraint("Horizontal", 2))
sketch8.addConstraint(Sketcher.Constraint("Vertical", 3))
sketch8.addConstraint(Sketcher.Constraint("Horizontal", 4))
sketch8.addConstraint(Sketcher.Constraint("Vertical", 5))
sketch8.addConstraint(Sketcher.Constraint("Horizontal", 6))
sketch8.addConstraint(Sketcher.Constraint("Vertical", 7))
sketch8.addConstraint(Sketcher.Constraint("Horizontal", 8))
sketch8.addConstraint(Sketcher.Constraint("Vertical", 9))
sketch8.addConstraint(Sketcher.Constraint("Vertical", 10))
sketch8.addConstraint(Sketcher.Constraint("Horizontal", 11))
sketch8.addConstraint(Sketcher.Constraint("Vertical", 12))
sketch8.addConstraint(Sketcher.Constraint("Horizontal", 13))
sketch8.addConstraint(Sketcher.Constraint("Vertical", 14))
sketch8.addConstraint(Sketcher.Constraint("Horizontal", 15))
sketch8.addConstraint(Sketcher.Constraint("Vertical", 16))
sketch8.addConstraint(Sketcher.Constraint("Horizontal", 17))
sketch8.addConstraint(Sketcher.Constraint("Vertical", 18))
sketch8.addConstraint(Sketcher.Constraint("Horizontal", 19))
sketch8.addConstraint(Sketcher.Constraint("Symmetric", 6, 2, 10, 2, -2))
sketch8.addConstraint(Sketcher.Constraint("Symmetric", 4, 2, 12, 2, -2))
sketch8.addConstraint(Sketcher.Constraint("Symmetric", 2, 2, 14, 2, -2))
sketch8.addConstraint(Sketcher.Constraint("Symmetric", 0, 2, 16, 2, -2))
sketch8.addConstraint(Sketcher.Constraint("Symmetric", 8, 2, 18, 2, -2))
sketch8.addConstraint(Sketcher.Constraint("Equal", 4, 6))
sketch8.addConstraint(Sketcher.Constraint("Equal", 13, 1))
sketch8.addConstraint(Sketcher.Constraint("Equal", 3, 5))
sketch8.addConstraint(Sketcher.Constraint("Equal", 5, 7))
sketch8.addConstraint(Sketcher.Constraint("DistanceX", 0, 1, 0, 2, Q("2 mm")))
sketch8.addConstraint(Sketcher.Constraint("DistanceX", 4, 1, 4, 2, Q("1 mm")))
sketch8.addConstraint(Sketcher.Constraint("DistanceX", 2, 1, 2, 2, Q("0.5 mm")))
sketch8.addConstraint(Sketcher.Constraint("DistanceY", 3, 2, 3, 1, Q("1.5 mm")))
sketch8.addConstraint(Sketcher.Constraint("DistanceY", -1, 1, 3, 2, Q("6 mm")))
sketch8.addConstraint(Sketcher.Constraint("DistanceX", 10, 2, 8, 2, Q("36 mm")))
sketch8.setExpression("Constraints[49]", "Params.sketch8_width")
sketch8.setExpression("Constraints[50]", "Params.sketch8_width2")
sketch8.setExpression("Constraints[51]", "Params.sketch8_width3")
sketch8.setExpression("Constraints[52]", "Params.sketch8_height")
pad8 = body.newObject("PartDesign::Pad", "Pad007")
pad8.Profile = sketch8
pad8.setExpression("Length", "Params.pad8_length")
pad8.Reversed = True

sketch9 = body.newObject("Sketcher::SketchObject", "Sketch008")
sketch9.AttachmentSupport = (doc.getObject("XY_Plane"), [""])
sketch9.MapMode = "FlatFace"
sketch9.AttachmentOffset = App.Placement(App.Vector(0, 0, 8.25), App.Rotation())
sketch9.addGeometry(Part.LineSegment(App.Vector(8.75, 6.6, 0), App.Vector(8.75, 1.5, 0)), False)
sketch9.addGeometry(Part.LineSegment(App.Vector(8.75, 1.5, 0), App.Vector(3.75, 1.5, 0)), False)
sketch9.addGeometry(Part.LineSegment(App.Vector(3.75, 1.5, 0), App.Vector(3.75, 6.6, 0)), False)
sketch9.addGeometry(Part.ArcOfCircle(Part.Circle(App.Vector(6.15, 6.6, 0), App.Vector(0, 0, 1), 2.4), math.radians(90), math.radians(180)), False)
sketch9.addGeometry(Part.LineSegment(App.Vector(6.15, 9, 0), App.Vector(6.35, 9, 0)), False)
sketch9.addGeometry(Part.ArcOfCircle(Part.Circle(App.Vector(6.35, 6.6, 0), App.Vector(0, 0, 1), 2.4), math.radians(0), math.radians(90)), False)
sketch9.addConstraint(Sketcher.Constraint("Coincident", 0, 2, 1, 1))
sketch9.addConstraint(Sketcher.Constraint("Coincident", 1, 2, 2, 1))
sketch9.addConstraint(Sketcher.Constraint("Tangent", 2, 2, 3, 2))
sketch9.addConstraint(Sketcher.Constraint("Tangent", 3, 1, 4, 1))
sketch9.addConstraint(Sketcher.Constraint("Tangent", 4, 2, 5, 2))
sketch9.addConstraint(Sketcher.Constraint("Tangent", 5, 1, 0, 1))
sketch9.addConstraint(Sketcher.Constraint("Vertical", 0))
sketch9.addConstraint(Sketcher.Constraint("Horizontal", 1))
sketch9.addConstraint(Sketcher.Constraint("Vertical", 2))
sketch9.addConstraint(Sketcher.Constraint("Horizontal", 4))
sketch9.addConstraint(Sketcher.Constraint("Equal", 3, 5))
sketch9.addConstraint(Sketcher.Constraint("Radius", 3, Q("2.4 mm")))
sketch9.addConstraint(Sketcher.Constraint("DistanceX", 1, 2, 1, 1, Q("5 mm")))
sketch9.addConstraint(Sketcher.Constraint("DistanceY", 0, 2, 0, 1, Q("5.1 mm")))
sketch9.addConstraint(Sketcher.Constraint("DistanceY", -1, 1, 3, 1, Q("9 mm")))
sketch9.addConstraint(Sketcher.Constraint("DistanceX", -1, 1, 3, 3, Q("6.15 mm")))
sketch9.setExpression("Constraints[11]", "Params.sketch9_radius")
sketch9.setExpression("Constraints[12]", "Params.sketch9_width")
sketch9.setExpression("Constraints[13]", "Params.sketch9_height")
pad9 = body.newObject("PartDesign::Pad", "Pad008")
pad9.Profile = sketch9
pad9.setExpression("Length", "Params.pad9_length")
pad9.Reversed = True

sketch10 = body.newObject("Sketcher::SketchObject", "Sketch009")
sketch10.AttachmentSupport = (doc.getObject("XY_Plane"), [""])
sketch10.MapMode = "FlatFace"
sketch10.AttachmentOffset = App.Placement(App.Vector(0, 0, 15.75), App.Rotation())
sketch10.addGeometry(Part.ArcOfCircle(Part.Circle(App.Vector(-0.4, 3, 0), App.Vector(0, 0, 1), 1.6), math.radians(-165), math.radians(-15)), False)
sketch10.addGeometry(Part.ArcOfCircle(Part.Circle(App.Vector(2.6, 3, 0), App.Vector(0, 0, 1), 1.6), math.radians(-165), math.radians(165)), False)
sketch10.addGeometry(Part.ArcOfCircle(Part.Circle(App.Vector(-0.4, 3, 0), App.Vector(0, 0, 1), 1.6), math.radians(15), math.radians(165)), False)
sketch10.addGeometry(Part.ArcOfCircle(Part.Circle(App.Vector(-3.4, 3, 0), App.Vector(0, 0, 1), 1.6), math.radians(15), math.radians(345)), False)
sketch10.addConstraint(Sketcher.Constraint("Coincident", 0, 2, 1, 1))
sketch10.addConstraint(Sketcher.Constraint("Coincident", 1, 2, 2, 1))
sketch10.addConstraint(Sketcher.Constraint("Coincident", 2, 2, 3, 1))
sketch10.addConstraint(Sketcher.Constraint("Coincident", 3, 2, 0, 1))
sketch10.addConstraint(Sketcher.Constraint("Coincident", 2, 3, 0, 3))
sketch10.addConstraint(Sketcher.Constraint("Equal", 0, 1))
sketch10.addConstraint(Sketcher.Constraint("Equal", 1, 2))
sketch10.addConstraint(Sketcher.Constraint("Equal", 2, 3))
sketch10.addConstraint(Sketcher.Constraint("Horizontal", 0, 3, 1, 3))
sketch10.addConstraint(Sketcher.Constraint("Horizontal", 2, 3, 3, 3))
sketch10.addConstraint(Sketcher.Constraint("Horizontal", 1, 2, 2, 2))
sketch10.addConstraint(Sketcher.Constraint("Radius", 0, Q("1.55 mm")))
sketch10.addConstraint(Sketcher.Constraint("DistanceY", -1, 1, 0, 3, Q("3 mm")))
sketch10.addConstraint(Sketcher.Constraint("DistanceX", 0, 3, 1, 3, Q("3 mm")))
sketch10.addConstraint(Sketcher.Constraint("DistanceX", 0, 3, -1, 1, Q("0.4 mm")))
sketch10.setExpression("Constraints[11]", "Params.sketch10_radius")
pocket1 = body.newObject("PartDesign::Pocket", "Pocket")
pocket1.Profile = sketch10
pocket1.setExpression("Length", "Params.pocket1_length")
body2 = doc.addObject("PartDesign::Body", "Body001")

sketch11 = body2.newObject("Sketcher::SketchObject", "Sketch010")
sketch11.AttachmentSupport = (doc.getObject("XZ_Plane001"), [""])
sketch11.MapMode = "FlatFace"
sketch11.AttachmentOffset = App.Placement(App.Vector(0, 0, -14.2), App.Rotation())
sketch11.addGeometry(Part.Circle(App.Vector(-6.7, -1.4, 0), App.Vector(0, 0, 1), 2), False)
sketch11.addConstraint(Sketcher.Constraint("Diameter", 0, Q("4 mm")))
sketch11.addConstraint(Sketcher.Constraint("DistanceX", 0, 3, -1, 1, Q("6.7 mm")))
sketch11.addConstraint(Sketcher.Constraint("DistanceY", 0, 3, -1, 1, Q("1.45 mm")))
sketch11.setExpression("Constraints[0]", "Params.sketch11_diameter")
pad10 = body2.newObject("PartDesign::Pad", "Pad009")
pad10.Profile = sketch11
pad10.setExpression("Length", "Params.pad10_length")
pad10.Reversed = True
doc.recompute()

chamfer = body2.newObject("PartDesign::Chamfer", "Chamfer")
chamfer.Base = (pad10, edges_at(pad10, [(-8.7, 21, -1.45)]))
chamfer.ChamferType = "Two distances"
chamfer.setExpression("Size", "Params.chamfer_size")
chamfer.setExpression("Size2", "Params.chamfer_size2")
body3 = doc.addObject("PartDesign::Body", "Body002")

sketch12 = body3.newObject("Sketcher::SketchObject", "Sketch011")
sketch12.AttachmentSupport = (doc.getObject("XZ_Plane002"), [""])
sketch12.MapMode = "FlatFace"
sketch12.AttachmentOffset = App.Placement(App.Vector(0, 0, -14.2), App.Rotation())
sketch12.addGeometry(Part.Circle(App.Vector(-3.4, 5.8, 0), App.Vector(0, 0, 1), 2), False)
sketch12.addConstraint(Sketcher.Constraint("Diameter", 0, Q("4 mm")))
sketch12.addConstraint(Sketcher.Constraint("DistanceX", 0, 3, -1, 1, Q("3.4 mm")))
sketch12.addConstraint(Sketcher.Constraint("DistanceY", -1, 1, 0, 3, Q("5.85 mm")))
sketch12.setExpression("Constraints[0]", "Params.sketch12_diameter")
pad11 = body3.newObject("PartDesign::Pad", "Pad010")
pad11.Profile = sketch12
pad11.setExpression("Length", "Params.pad11_length")
pad11.Reversed = True
doc.recompute()

chamfer2 = body3.newObject("PartDesign::Chamfer", "Chamfer001")
chamfer2.Base = (pad11, edges_at(pad11, [(-5.4, 21, 5.85)]))
chamfer2.ChamferType = "Two distances"
chamfer2.setExpression("Size", "Params.chamfer2_size")
chamfer2.setExpression("Size2", "Params.chamfer2_size2")
body4 = doc.addObject("PartDesign::Body", "Body003")

sketch13 = body4.newObject("Sketcher::SketchObject", "Sketch012")
sketch13.AttachmentSupport = (doc.getObject("XZ_Plane003"), [""])
sketch13.MapMode = "FlatFace"
sketch13.AttachmentOffset = App.Placement(App.Vector(0, 0, -14.2), App.Rotation())
sketch13.addGeometry(Part.Circle(App.Vector(6.5, -1.4, 0), App.Vector(0, 0, 1), 2), False)
sketch13.addConstraint(Sketcher.Constraint("Diameter", 0, Q("4 mm")))
sketch13.addConstraint(Sketcher.Constraint("DistanceX", -1, 1, 0, 3, Q("6.5 mm")))
sketch13.addConstraint(Sketcher.Constraint("DistanceY", 0, 3, -1, 1, Q("1.45 mm")))
sketch13.setExpression("Constraints[0]", "Params.sketch13_diameter")
pad12 = body4.newObject("PartDesign::Pad", "Pad011")
pad12.Profile = sketch13
pad12.setExpression("Length", "Params.pad12_length")
pad12.Reversed = True
doc.recompute()

chamfer3 = body4.newObject("PartDesign::Chamfer", "Chamfer002")
chamfer3.Base = (pad12, edges_at(pad12, [(4.5, 21, -1.45)]))
chamfer3.ChamferType = "Two distances"
chamfer3.setExpression("Size", "Params.chamfer3_size")
chamfer3.setExpression("Size2", "Params.chamfer3_size2")

doc.recompute()
